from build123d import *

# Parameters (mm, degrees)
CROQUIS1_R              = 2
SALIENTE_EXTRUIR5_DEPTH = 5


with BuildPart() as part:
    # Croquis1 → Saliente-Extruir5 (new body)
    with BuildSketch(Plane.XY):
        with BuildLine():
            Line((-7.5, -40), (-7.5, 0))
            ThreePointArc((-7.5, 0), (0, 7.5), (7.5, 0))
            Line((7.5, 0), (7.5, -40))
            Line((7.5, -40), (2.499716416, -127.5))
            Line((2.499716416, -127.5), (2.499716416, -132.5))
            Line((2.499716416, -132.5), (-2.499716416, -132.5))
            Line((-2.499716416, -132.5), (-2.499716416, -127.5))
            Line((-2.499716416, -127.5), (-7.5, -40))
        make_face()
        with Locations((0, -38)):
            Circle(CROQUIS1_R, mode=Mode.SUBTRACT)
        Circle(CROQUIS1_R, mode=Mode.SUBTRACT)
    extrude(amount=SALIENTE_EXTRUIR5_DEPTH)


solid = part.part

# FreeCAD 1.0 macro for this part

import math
import FreeCAD as App
import Part
import Sketcher
from FreeCAD import Vector

doc = App.newDocument("Part")
body = doc.addObject("PartDesign::Body", "Body")

# Sketch on XY plane
sketch1 = doc.addObject("Sketcher::SketchObject", "Sketch")
body.addObject(sketch1)
sketch1.AttachmentSupport = (doc.XY_Plane, [""])
sketch1.MapMode = "FlatFace"
sketch1.addGeometry([
    Part.LineSegment(Vector(-7.5, 0, 0), Vector(-7.5, -40, 0)),  # 0
    Part.LineSegment(Vector(-7.5, -40, 0), Vector(-2.5, -127.5, 0)),  # 1
    Part.LineSegment(Vector(-2.5, -127.5, 0), Vector(-2.5, -132.5, 0)),  # 2
    Part.LineSegment(Vector(-2.5, -132.5, 0), Vector(2.5, -132.5, 0)),  # 3
    Part.LineSegment(Vector(2.5, -132.5, 0), Vector(2.5, -127.5, 0)),  # 4
    Part.LineSegment(Vector(2.5, -127.5, 0), Vector(7.5, -40, 0)),  # 5
    Part.LineSegment(Vector(7.5, -40, 0), Vector(7.5, 0, 0)),  # 6
    Part.ArcOfCircle(Part.Circle(Vector(0, 0, 0), Vector(0, 0, 1), 7.5), math.radians(0), math.radians(180)),  # 7
    Part.Circle(Vector(0, -38, 0), Vector(0, 0, 1), 2),  # 8
    Part.Circle(Vector(0, 0, 0), Vector(0, 0, 1), 2),  # 9
], False)
sketch1.addConstraint([
    Sketcher.Constraint("Coincident", 0, 2, 1, 1),
    Sketcher.Constraint("Coincident", 1, 2, 2, 1),
    Sketcher.Constraint("Coincident", 2, 2, 3, 1),
    Sketcher.Constraint("Coincident", 3, 2, 4, 1),
    Sketcher.Constraint("Coincident", 4, 2, 5, 1),
    Sketcher.Constraint("Coincident", 5, 2, 6, 1),
    Sketcher.Constraint("Tangent", 6, 2, 7, 1),
    Sketcher.Constraint("Tangent", 7, 2, 0, 1),
    Sketcher.Constraint("Vertical", 0),
    Sketcher.Constraint("Vertical", 2),
    Sketcher.Constraint("Horizontal", 3),
    Sketcher.Constraint("Vertical", 4),
    Sketcher.Constraint("Vertical", 6),
    Sketcher.Constraint("Coincident", 7, 3, -1, 1),
    Sketcher.Constraint("Coincident", 9, 3, -1, 1),
    Sketcher.Constraint("Equal", 8, 9),
    Sketcher.Constraint("Symmetric", 1, 2, 4, 2, -2),
    Sketcher.Constraint("PointOnObject", 8, 3, -2),
    Sketcher.Constraint("Horizontal", 0, 2, 5, 2),
    Sketcher.Constraint("Diameter", 8, 4.0),
    Sketcher.Constraint("Radius", 7, 7.5),
    Sketcher.Constraint("DistanceY", 0, 2, 0, 1, 40.0),
    Sketcher.Constraint("DistanceY", 2, 2, 2, 1, 5.0),
    Sketcher.Constraint("DistanceY", 8, 3, -1, 1, 38.0),
    Sketcher.Constraint("DistanceY", 1, 2, -1, 1, 127.5),
    Sketcher.Constraint("DistanceX", 3, 1, 3, 2, 4.999433),
])
pad1 = doc.addObject("PartDesign::Pad", "Pad")
body.addObject(pad1)
pad1.Profile = sketch1
pad1.Length = 5

doc.recompute()
